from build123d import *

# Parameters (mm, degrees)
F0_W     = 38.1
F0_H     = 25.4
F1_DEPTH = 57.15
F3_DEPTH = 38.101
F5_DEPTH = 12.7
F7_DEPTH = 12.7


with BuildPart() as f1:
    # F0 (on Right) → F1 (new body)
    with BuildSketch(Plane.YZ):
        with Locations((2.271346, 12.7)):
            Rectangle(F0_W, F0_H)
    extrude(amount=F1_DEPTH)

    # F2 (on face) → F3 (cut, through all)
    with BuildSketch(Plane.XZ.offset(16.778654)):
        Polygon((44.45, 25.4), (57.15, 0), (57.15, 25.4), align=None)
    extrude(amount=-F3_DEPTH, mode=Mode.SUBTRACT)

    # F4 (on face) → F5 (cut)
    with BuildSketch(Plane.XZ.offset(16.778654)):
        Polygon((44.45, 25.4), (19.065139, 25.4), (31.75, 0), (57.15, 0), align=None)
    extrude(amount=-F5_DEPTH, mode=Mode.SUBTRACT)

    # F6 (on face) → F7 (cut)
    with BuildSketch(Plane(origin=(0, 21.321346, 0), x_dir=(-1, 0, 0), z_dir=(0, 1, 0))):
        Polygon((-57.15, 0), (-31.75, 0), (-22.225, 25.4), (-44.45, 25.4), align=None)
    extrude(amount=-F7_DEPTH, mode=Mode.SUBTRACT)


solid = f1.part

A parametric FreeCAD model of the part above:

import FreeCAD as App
import Part
import Sketcher

V = App.Vector
Q = App.Units.Quantity

doc = App.newDocument("Part")
body = doc.addObject("PartDesign::Body", "Body")

# Sketch on YZ plane
sketch1 = doc.addObject("Sketcher::SketchObject", "Sketch")
body.addObject(sketch1)
sketch1.AttachmentSupport = (doc.YZ_Plane, [""])
sketch1.MapMode = "FlatFace"
sketch1.addGeometry([
    Part.LineSegment(V(-16.778654, 25.4, 0), V(-16.778654, 0, 0)),
    Part.LineSegment(V(-16.778654, 0, 0), V(21.321346, 0, 0)),
    Part.LineSegment(V(21.321346, 0, 0), V(21.321346, 25.4, 0)),
    Part.LineSegment(V(21.321346, 25.4, 0), V(-16.778654, 25.4, 0)),
], False)
sketch1.addConstraint([
    Sketcher.Constraint("Coincident", 0, 2, 1, 1),
    Sketcher.Constraint("Coincident", 1, 2, 2, 1),
    Sketcher.Constraint("Coincident", 2, 2, 3, 1),
    Sketcher.Constraint("Coincident", 3, 2, 0, 1),
    Sketcher.Constraint("Vertical", 0),
    Sketcher.Constraint("Horizontal", 1),
    Sketcher.Constraint("Vertical", 2),
    Sketcher.Constraint("Horizontal", 3),
    Sketcher.Constraint("PointOnObject", 0, 2, -1),
    Sketcher.Constraint("DistanceY", 0, 2, 0, 1, Q("1 in")),
    Sketcher.Constraint("DistanceX", 1, 1, 1, 2, Q("1.5 in")),
    Sketcher.Constraint("DistanceX", 0, 2, -1, 1, Q("16.778654 mm")),
])
pad1 = doc.addObject("PartDesign::Pad", "Pad")
body.addObject(pad1)
pad1.Profile = sketch1
pad1.Length = Q("2.25 in")

# Sketch on XZ plane
sketch2 = doc.addObject("Sketcher::SketchObject", "Sketch001")
body.addObject(sketch2)
sketch2.AttachmentSupport = (doc.XZ_Plane, [""])
sketch2.MapMode = "FlatFace"
sketch2.AttachmentOffset = App.Placement(V(0, 0, 16.778654), App.Rotation())
sketch2.addGeometry([
    Part.LineSegment(V(44.45, 25.4, 0), V(57.15, 0, 0)),
    Part.LineSegment(V(57.15, 0, 0), V(57.15, 25.4, 0)),
    Part.LineSegment(V(57.15, 25.4, 0), V(44.45, 25.4, 0)),
], False)
sketch2.addConstraint([
    Sketcher.Constraint("Coincident", 0, 2, 1, 1),
    Sketcher.Constraint("Coincident", 1, 2, 2, 1),
    Sketcher.Constraint("Coincident", 2, 2, 0, 1),
    Sketcher.Constraint("Vertical", 1),
    Sketcher.Constraint("Horizontal", 2),
    Sketcher.Constraint("PointOnObject", 0, 2, -1),
    Sketcher.Constraint("DistanceY", 1, 1, 1, 2, Q("1 in")),
    Sketcher.Constraint("DistanceX", 2, 2, 2, 1, Q("0.5 in")),
    Sketcher.Constraint("DistanceX", -1, 1, 0, 2, Q("2.25 in")),
])
pocket1 = doc.addObject("PartDesign::Pocket", "Pocket")
body.addObject(pocket1)
pocket1.Profile = sketch2
pocket1.Type = "ThroughAll"

# Sketch on XZ plane
sketch3 = doc.addObject("Sketcher::SketchObject", "Sketch002")
body.addObject(sketch3)
sketch3.AttachmentSupport = (doc.XZ_Plane, [""])
sketch3.MapMode = "FlatFace"
sketch3.AttachmentOffset = App.Placement(V(0, 0, 16.778654), App.Rotation())
sketch3.addGeometry([
    Part.LineSegment(V(44.45, 25.4, 0), V(19.065139, 25.4, 0)),
    Part.LineSegment(V(19.065139, 25.4, 0), V(31.75, 0, 0)),
    Part.LineSegment(V(31.75, 0, 0), V(57.15, 0, 0)),
    Part.LineSegment(V(57.15, 0, 0), V(44.45, 25.4, 0)),
], False)
sketch3.addConstraint([
    Sketcher.Constraint("Coincident", 0, 2, 1, 1),
    Sketcher.Constraint("Coincident", 1, 2, 2, 1),
    Sketcher.Constraint("Coincident", 2, 2, 3, 1),
    Sketcher.Constraint("Coincident", 3, 2, 0, 1),
    Sketcher.Constraint("Horizontal", 0),
    Sketcher.Constraint("Horizontal", 2),
    Sketcher.Constraint("PointOnObject", 1, 2, -1),
    Sketcher.Constraint("DistanceX", 2, 1, 2, 2, Q("1 in")),
    Sketcher.Constraint("DistanceY", -1, 1, 0, 2, Q("1 in")),
    Sketcher.Constraint("DistanceX", 3, 2, 2, 2, Q("0.5 in")),
    Sketcher.Constraint("DistanceX", -1, 1, 1, 2, Q("1.25 in")),
    Sketcher.Constraint("DistanceX", 0, 2, 0, 1, Q("25.384861 mm")),
])
pocket2 = doc.addObject("PartDesign::Pocket", "Pocket001")
body.addObject(pocket2)
pocket2.Profile = sketch3
pocket2.Length = Q("0.5 in")

# Sketch on XZ plane
sketch4 = doc.addObject("Sketcher::SketchObject", "Sketch003")
body.addObject(sketch4)
sketch4.AttachmentSupport = (doc.XZ_Plane, [""])
sketch4.MapMode = "FlatFace"
sketch4.AttachmentOffset = App.Placement(V(0, 0, -21.321346), App.Rotation())
sketch4.addGeometry([
    Part.LineSegment(V(57.15, 0, 0), V(31.75, 0, 0)),
    Part.LineSegment(V(31.75, 0, 0), V(22.225, 25.4, 0)),
    Part.LineSegment(V(22.225, 25.4, 0), V(44.45, 25.4, 0)),
    Part.LineSegment(V(44.45, 25.4, 0), V(57.15, 0, 0)),
], False)
sketch4.addConstraint([
    Sketcher.Constraint("Coincident", 0, 2, 1, 1),
    Sketcher.Constraint("Coincident", 1, 2, 2, 1),
    Sketcher.Constraint("Coincident", 2, 2, 3, 1),
    Sketcher.Constraint("Coincident", 3, 2, 0, 1),
    Sketcher.Constraint("Horizontal", 0),
    Sketcher.Constraint("Horizontal", 2),
    Sketcher.Constraint("PointOnObject", 0, 2, -1),
    Sketcher.Constraint("DistanceX", 0, 2, 0, 1, Q("1 in")),
    Sketcher.Constraint("DistanceY", -1, 1, 1, 2, Q("1 in")),
    Sketcher.Constraint("DistanceX", 0, 2, 2, 2, Q("0.5 in")),
    Sketcher.Constraint("DistanceX", 2, 1, 2, 2, Q("0.875 in")),
    Sketcher.Constraint("DistanceX", -1, 1, 0, 2, Q("1.25 in")),
])
pocket3 = doc.addObject("PartDesign::Pocket", "Pocket002")
body.addObject(pocket3)
pocket3.Profile = sketch4
pocket3.Length = Q("0.5 in")
pocket3.Reversed = True

doc.recompute()
